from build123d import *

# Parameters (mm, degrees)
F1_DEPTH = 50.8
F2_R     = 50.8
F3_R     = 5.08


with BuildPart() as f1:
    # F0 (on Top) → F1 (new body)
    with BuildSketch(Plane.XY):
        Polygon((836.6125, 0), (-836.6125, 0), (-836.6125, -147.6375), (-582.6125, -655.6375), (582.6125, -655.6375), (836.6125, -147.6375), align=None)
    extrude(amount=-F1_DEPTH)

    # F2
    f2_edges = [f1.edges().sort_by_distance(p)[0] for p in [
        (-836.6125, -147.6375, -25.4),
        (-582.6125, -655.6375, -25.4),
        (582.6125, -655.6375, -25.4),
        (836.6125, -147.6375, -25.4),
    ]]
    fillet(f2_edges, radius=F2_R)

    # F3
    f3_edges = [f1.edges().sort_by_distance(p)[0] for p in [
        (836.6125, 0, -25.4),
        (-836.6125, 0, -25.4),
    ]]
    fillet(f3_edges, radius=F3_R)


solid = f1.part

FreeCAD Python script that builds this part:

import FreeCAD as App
import Part
import Sketcher

V = App.Vector
Q = App.Units.Quantity


def edges_at(feature, points):
    """Names of the edges that pass closest to the given points."""
    edges = feature.Shape.Edges
    near = lambda p: min(range(len(edges)), key=lambda i: edges[i].distToShape(Part.Vertex(*p))[0])
    return sorted({f"Edge{near(p) + 1}" for p in points})

doc = App.newDocument("Part")
body = doc.addObject("PartDesign::Body", "Body")

# Sketch on XY plane
sketch1 = body.newObject("Sketcher::SketchObject", "Sketch")
sketch1.AttachmentSupport = (doc.getObject("XY_Plane"), [""])
sketch1.MapMode = "FlatFace"
sketch1.addGeometry([
    Part.LineSegment(V(836.6125, 0, 0), V(-836.6125, 0, 0)),  # 0
    Part.LineSegment(V(-836.6125, 0, 0), V(-836.6125, -147.6375, 0)),  # 1
    Part.LineSegment(V(-836.6125, -147.6375, 0), V(-582.6125, -655.6375, 0)),  # 2
    Part.LineSegment(V(-582.6125, -655.6375, 0), V(582.6125, -655.6375, 0)),  # 3
    Part.LineSegment(V(582.6125, -655.6375, 0), V(836.6125, -147.6375, 0)),  # 4
    Part.LineSegment(V(836.6125, -147.6375, 0), V(836.6125, 0, 0)),  # 5
], False)
sketch1.addConstraint([
    Sketcher.Constraint("Coincident", 0, 2, 1, 1),
    Sketcher.Constraint("Coincident", 1, 2, 2, 1),
    Sketcher.Constraint("Coincident", 2, 2, 3, 1),
    Sketcher.Constraint("Coincident", 3, 2, 4, 1),
    Sketcher.Constraint("Coincident", 4, 2, 5, 1),
    Sketcher.Constraint("Coincident", 5, 2, 0, 1),
    Sketcher.Constraint("Horizontal", 0),
    Sketcher.Constraint("Vertical", 1),
    Sketcher.Constraint("Horizontal", 3),
    Sketcher.Constraint("Vertical", 5),
    Sketcher.Constraint("Symmetric", 0, 2, 5, 2, -1, 1),
    Sketcher.Constraint("Horizontal", 1, 2, 4, 2),
    Sketcher.Constraint("Equal", 2, 4),
    Sketcher.Constraint("DistanceX", 1, 2, 2, 2, Q("10 in")),
    Sketcher.Constraint("DistanceY", 2, 2, 1, 2, Q("20 in")),
    Sketcher.Constraint("DistanceX", 0, 2, 0, 1, Q("65.875 in")),
    Sketcher.Constraint("DistanceY", 1, 2, 1, 1, Q("5.8125 in")),
])
pad1 = body.newObject("PartDesign::Pad", "Pad")
pad1.Profile = sketch1
pad1.Length = Q("2 in")
pad1.Reversed = True
doc.recompute()

fillet = body.newObject("PartDesign::Fillet", "Fillet")
fillet.Base = (pad1, edges_at(pad1, [
    (-836.612, -147.637, -25.4),
    (-582.612, -655.638, -25.4),
    (582.612, -655.638, -25.4),
    (836.612, -147.637, -25.4),
]))
fillet.Radius = Q("2 in")
doc.recompute()

fillet2 = body.newObject("PartDesign::Fillet", "Fillet001")
fillet2.Base = (fillet, edges_at(fillet, [(836.612, 0, -25.4), (-836.612, 0, -25.4)]))
fillet2.Radius = Q("0.2 in")

doc.recompute()
